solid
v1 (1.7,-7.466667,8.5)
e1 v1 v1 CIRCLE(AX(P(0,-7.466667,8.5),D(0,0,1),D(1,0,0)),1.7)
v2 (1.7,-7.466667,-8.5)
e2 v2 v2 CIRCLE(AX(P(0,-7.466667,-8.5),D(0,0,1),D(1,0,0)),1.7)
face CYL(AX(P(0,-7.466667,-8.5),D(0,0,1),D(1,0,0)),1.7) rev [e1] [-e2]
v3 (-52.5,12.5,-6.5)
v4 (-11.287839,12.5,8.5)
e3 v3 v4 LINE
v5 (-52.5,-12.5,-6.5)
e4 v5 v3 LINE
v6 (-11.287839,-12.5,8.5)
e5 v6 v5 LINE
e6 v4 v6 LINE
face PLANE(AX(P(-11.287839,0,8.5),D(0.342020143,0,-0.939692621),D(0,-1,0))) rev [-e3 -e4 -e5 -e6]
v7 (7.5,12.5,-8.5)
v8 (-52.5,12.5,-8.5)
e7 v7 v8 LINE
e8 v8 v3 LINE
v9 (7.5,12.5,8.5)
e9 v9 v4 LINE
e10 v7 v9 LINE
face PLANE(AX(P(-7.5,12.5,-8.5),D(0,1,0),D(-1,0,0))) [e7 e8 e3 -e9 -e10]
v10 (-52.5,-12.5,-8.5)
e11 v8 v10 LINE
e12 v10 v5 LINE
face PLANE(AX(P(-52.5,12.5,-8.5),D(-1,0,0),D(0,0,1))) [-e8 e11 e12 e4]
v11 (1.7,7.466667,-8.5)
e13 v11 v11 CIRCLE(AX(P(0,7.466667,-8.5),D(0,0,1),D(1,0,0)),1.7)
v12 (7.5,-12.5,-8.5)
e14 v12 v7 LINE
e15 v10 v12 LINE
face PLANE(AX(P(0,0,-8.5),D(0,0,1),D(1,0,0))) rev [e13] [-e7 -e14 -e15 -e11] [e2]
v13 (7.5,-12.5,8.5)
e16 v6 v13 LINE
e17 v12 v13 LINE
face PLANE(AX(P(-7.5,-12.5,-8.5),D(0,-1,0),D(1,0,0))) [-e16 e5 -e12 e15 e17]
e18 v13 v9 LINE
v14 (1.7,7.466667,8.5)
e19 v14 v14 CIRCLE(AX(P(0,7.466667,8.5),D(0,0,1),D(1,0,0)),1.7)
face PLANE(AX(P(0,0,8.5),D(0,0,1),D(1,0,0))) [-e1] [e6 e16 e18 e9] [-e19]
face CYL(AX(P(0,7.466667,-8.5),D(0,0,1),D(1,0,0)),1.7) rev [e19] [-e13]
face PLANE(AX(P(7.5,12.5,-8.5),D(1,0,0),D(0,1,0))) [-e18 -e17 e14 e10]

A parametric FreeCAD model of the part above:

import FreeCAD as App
import Part
import Sketcher
from FreeCAD import Vector


def edges_at(feature, points):
    """Names of the edges that pass closest to the given points."""
    edges = feature.Shape.Edges
    near = lambda p: min(range(len(edges)), key=lambda i: edges[i].distToShape(Part.Vertex(*p))[0])
    return sorted({f"Edge{near(p) + 1}" for p in points})

doc = App.newDocument("Part")
body = doc.addObject("PartDesign::Body", "Body")

sketch1 = doc.addObject("Sketcher::SketchObject", "Sketch")
body.addObject(sketch1)
sketch1.AttachmentSupport = (doc.XY_Plane, [""])
sketch1.MapMode = "FlatFace"
sketch1.addGeometry(Part.LineSegment(Vector(7.5, 12.5, 0), Vector(-52.5, 12.5, 0)), False)
sketch1.addGeometry(Part.LineSegment(Vector(-52.5, 12.5, 0), Vector(-52.5, -12.5, 0)), False)
sketch1.addGeometry(Part.LineSegment(Vector(-52.5, -12.5, 0), Vector(7.5, -12.5, 0)), False)
sketch1.addGeometry(Part.LineSegment(Vector(7.5, -12.5, 0), Vector(7.5, 12.5, 0)), False)
sketch1.addGeometry(Part.Circle(Vector(0, -7.5, 0), Vector(0, 0, 1), 1.7), False)
sketch1.addGeometry(Part.Circle(Vector(0, 7.5, 0), Vector(0, 0, 1), 1.7), False)
sketch1.addConstraint(Sketcher.Constraint("Coincident", 0, 2, 1, 1))
sketch1.addConstraint(Sketcher.Constraint("Coincident", 1, 2, 2, 1))
sketch1.addConstraint(Sketcher.Constraint("Coincident", 2, 2, 3, 1))
sketch1.addConstraint(Sketcher.Constraint("Coincident", 3, 2, 0, 1))
sketch1.addConstraint(Sketcher.Constraint("Horizontal", 0))
sketch1.addConstraint(Sketcher.Constraint("Vertical", 1))
sketch1.addConstraint(Sketcher.Constraint("Horizontal", 2))
sketch1.addConstraint(Sketcher.Constraint("Vertical", 3))
sketch1.addConstraint(Sketcher.Constraint("Equal", 4, 5))
sketch1.addConstraint(Sketcher.Constraint("Symmetric", 4, 3, 5, 3, -1, 1))
sketch1.addConstraint(Sketcher.Constraint("PointOnObject", 4, 3, -2))
sketch1.addConstraint(Sketcher.Constraint("Diameter", 4, 3.4))
sketch1.addConstraint(Sketcher.Constraint("DistanceX", 0, 2, 0, 1, 60.0))
sketch1.addConstraint(Sketcher.Constraint("DistanceY", 1, 2, 1, 1, 25.0))
sketch1.addConstraint(Sketcher.Constraint("DistanceX", 0, 2, -1, 1, 52.5))
sketch1.addConstraint(Sketcher.Constraint("DistanceY", -1, 1, 0, 2, 12.5))
sketch1.addConstraint(Sketcher.Constraint("DistanceY", 4, 3, -1, 1, 7.466667))
pad1 = doc.addObject("PartDesign::Pad", "Pad")
body.addObject(pad1)
pad1.Profile = sketch1
pad1.Type = "TwoLengths"
pad1.Length = 8.5
pad1.Length2 = 8.5
doc.recompute()

chamfer = doc.addObject("PartDesign::Chamfer", "Chamfer")
body.addObject(chamfer)
chamfer.Base = (pad1, edges_at(pad1, [(-52.5, 0, 8.5)]))
chamfer.ChamferType = "Two distances"
chamfer.Size = 15
chamfer.Size2 = 41.212161

doc.recompute()
